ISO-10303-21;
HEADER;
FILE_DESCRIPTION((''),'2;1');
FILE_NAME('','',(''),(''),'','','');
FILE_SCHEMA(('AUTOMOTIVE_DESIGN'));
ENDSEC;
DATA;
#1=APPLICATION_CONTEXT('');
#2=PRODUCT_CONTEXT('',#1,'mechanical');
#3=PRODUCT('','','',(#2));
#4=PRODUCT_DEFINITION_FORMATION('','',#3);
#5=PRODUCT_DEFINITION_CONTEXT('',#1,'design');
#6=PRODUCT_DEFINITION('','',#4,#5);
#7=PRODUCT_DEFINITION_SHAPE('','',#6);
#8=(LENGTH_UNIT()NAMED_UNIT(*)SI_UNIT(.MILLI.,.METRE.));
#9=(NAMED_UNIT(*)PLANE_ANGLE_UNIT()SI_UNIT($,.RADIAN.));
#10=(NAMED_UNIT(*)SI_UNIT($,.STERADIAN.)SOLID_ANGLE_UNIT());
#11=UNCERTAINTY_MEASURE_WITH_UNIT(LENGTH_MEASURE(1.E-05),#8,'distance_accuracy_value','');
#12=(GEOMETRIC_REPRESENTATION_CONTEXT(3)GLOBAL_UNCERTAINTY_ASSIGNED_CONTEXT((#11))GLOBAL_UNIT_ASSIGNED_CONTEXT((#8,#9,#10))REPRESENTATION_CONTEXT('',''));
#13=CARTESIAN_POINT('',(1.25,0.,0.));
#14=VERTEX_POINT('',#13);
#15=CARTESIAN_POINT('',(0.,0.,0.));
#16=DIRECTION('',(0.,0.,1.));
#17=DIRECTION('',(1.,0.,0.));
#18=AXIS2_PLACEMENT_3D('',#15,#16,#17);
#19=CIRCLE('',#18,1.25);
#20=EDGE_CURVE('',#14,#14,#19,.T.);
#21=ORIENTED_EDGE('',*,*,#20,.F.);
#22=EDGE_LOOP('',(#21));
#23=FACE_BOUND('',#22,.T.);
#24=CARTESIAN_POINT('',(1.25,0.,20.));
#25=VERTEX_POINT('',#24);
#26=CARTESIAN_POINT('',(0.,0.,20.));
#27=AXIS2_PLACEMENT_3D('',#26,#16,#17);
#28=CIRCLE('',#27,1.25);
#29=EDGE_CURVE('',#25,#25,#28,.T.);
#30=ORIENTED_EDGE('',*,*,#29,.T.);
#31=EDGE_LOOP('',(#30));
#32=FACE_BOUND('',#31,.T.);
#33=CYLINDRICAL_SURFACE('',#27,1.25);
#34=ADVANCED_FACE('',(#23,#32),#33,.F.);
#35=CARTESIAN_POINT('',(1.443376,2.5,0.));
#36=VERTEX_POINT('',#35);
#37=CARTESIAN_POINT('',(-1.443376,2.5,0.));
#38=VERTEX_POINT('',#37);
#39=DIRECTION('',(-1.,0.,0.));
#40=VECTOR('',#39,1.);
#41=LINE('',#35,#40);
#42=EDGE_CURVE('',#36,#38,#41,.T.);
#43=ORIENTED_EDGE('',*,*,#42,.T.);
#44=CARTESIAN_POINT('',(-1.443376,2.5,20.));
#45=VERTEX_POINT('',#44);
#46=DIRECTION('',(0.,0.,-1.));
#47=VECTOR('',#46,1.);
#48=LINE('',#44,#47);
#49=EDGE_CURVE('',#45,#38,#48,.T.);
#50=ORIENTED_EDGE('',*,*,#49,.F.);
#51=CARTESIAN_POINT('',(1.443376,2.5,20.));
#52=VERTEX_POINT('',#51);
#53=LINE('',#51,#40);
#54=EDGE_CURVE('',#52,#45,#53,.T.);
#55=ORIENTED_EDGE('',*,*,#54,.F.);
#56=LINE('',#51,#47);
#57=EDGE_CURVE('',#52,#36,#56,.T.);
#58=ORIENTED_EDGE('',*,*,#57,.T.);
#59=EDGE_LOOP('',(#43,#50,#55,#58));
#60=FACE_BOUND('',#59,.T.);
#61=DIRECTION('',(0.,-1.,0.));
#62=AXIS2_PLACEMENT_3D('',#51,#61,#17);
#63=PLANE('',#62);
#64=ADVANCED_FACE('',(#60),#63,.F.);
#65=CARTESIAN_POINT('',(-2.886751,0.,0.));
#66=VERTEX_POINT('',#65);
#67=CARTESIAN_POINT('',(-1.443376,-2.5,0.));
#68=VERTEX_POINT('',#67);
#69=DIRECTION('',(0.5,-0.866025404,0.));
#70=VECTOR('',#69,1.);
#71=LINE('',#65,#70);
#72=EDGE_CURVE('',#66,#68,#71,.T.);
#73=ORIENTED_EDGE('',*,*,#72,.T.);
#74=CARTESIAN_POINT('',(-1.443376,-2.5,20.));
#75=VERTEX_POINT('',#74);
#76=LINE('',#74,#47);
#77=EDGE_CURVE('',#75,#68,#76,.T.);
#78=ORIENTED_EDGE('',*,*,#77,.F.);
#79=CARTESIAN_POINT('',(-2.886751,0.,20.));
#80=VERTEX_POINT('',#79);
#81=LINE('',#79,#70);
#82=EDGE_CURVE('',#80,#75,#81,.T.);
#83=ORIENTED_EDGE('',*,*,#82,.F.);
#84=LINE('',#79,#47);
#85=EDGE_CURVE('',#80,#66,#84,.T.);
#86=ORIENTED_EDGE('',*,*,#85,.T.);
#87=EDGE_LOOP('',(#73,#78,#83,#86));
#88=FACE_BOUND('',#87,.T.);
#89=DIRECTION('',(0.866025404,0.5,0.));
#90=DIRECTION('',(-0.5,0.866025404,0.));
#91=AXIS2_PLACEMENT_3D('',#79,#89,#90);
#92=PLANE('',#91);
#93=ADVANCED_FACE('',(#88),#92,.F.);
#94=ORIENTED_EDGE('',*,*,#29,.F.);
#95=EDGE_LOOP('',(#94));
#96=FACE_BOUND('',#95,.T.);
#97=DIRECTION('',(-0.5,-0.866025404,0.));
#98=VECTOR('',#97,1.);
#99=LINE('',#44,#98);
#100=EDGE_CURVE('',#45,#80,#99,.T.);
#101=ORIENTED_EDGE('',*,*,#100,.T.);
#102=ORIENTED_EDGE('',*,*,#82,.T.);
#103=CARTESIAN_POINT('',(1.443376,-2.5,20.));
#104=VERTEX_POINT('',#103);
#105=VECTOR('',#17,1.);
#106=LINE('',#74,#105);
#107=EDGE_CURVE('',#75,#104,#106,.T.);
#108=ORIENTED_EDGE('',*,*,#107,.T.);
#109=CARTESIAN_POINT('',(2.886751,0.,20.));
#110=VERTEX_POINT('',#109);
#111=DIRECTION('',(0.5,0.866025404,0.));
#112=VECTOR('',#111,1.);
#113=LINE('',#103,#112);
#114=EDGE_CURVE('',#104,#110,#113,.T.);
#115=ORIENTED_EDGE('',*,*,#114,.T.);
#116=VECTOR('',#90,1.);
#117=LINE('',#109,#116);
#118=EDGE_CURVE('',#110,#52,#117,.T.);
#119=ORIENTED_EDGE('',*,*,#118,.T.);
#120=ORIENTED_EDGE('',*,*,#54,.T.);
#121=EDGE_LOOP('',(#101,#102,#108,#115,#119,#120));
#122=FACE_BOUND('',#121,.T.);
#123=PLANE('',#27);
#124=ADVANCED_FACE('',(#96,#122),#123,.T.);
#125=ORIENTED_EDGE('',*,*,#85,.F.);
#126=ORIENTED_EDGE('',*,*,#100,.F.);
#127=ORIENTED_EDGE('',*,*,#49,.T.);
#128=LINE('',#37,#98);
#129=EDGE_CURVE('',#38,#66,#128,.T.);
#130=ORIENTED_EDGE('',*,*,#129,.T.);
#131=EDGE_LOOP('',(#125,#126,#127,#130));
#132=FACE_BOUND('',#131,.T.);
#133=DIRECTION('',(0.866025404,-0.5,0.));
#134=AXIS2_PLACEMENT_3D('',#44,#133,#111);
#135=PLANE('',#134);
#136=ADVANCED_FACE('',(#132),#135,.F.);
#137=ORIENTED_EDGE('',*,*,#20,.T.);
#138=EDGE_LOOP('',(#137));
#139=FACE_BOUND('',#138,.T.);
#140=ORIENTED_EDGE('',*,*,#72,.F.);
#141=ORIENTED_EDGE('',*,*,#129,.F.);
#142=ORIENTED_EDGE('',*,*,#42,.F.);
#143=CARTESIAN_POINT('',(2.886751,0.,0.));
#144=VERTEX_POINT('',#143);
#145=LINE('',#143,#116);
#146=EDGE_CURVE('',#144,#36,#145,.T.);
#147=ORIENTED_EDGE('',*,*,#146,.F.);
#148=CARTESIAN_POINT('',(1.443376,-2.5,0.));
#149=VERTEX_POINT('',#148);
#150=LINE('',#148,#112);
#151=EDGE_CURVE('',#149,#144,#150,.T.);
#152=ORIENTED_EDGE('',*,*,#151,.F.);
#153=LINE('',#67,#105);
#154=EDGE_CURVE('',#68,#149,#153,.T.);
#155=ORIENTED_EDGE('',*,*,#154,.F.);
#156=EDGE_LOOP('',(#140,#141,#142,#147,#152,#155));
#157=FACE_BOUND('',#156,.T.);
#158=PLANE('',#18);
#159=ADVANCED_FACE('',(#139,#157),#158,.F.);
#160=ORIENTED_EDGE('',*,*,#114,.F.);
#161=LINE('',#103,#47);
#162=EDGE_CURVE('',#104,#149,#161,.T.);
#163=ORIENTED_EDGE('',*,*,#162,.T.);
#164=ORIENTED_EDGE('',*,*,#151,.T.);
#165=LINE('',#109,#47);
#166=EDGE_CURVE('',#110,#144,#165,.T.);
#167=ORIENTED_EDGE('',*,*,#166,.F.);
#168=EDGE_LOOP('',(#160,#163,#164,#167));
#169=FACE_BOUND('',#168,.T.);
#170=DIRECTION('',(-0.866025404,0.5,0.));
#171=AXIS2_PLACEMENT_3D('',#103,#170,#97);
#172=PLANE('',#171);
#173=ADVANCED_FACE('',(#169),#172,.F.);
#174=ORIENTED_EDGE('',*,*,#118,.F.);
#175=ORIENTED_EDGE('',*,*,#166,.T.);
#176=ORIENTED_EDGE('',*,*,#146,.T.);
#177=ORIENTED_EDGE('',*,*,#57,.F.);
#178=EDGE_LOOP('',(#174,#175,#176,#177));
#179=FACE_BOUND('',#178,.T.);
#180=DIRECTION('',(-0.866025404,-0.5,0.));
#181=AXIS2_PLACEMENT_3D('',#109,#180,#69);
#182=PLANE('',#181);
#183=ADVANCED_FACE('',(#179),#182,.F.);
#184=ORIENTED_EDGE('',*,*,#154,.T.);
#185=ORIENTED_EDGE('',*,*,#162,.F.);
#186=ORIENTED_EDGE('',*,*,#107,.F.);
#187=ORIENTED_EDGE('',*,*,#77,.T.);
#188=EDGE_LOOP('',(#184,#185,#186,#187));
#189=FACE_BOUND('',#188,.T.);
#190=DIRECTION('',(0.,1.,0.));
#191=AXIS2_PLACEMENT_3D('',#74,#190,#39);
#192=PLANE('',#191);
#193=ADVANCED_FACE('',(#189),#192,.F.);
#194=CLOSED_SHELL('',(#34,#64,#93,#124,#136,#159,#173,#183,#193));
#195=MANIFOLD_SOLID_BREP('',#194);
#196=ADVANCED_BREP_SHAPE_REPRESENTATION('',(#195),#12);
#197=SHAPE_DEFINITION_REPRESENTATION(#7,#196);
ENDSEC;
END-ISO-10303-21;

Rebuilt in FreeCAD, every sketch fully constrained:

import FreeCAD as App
import Part
import Sketcher
Q = App.Units.Quantity


def add_polygon(sketch, points):
    """Adds a closed chain of lines whose ends are joined by coincident constraints."""
    first, n = sketch.GeometryCount, len(points)
    for a, b in zip(points, points[1:] + points[:1]):
        sketch.addGeometry(Part.LineSegment(App.Vector(*a, 0), App.Vector(*b, 0)), False)
    for i in range(n):
        sketch.addConstraint(Sketcher.Constraint("Coincident", first + i, 2, first + (i + 1) % n, 1))

doc = App.newDocument("Part")
body = doc.addObject("PartDesign::Body", "Body")

# Sketch on XY plane
sketch1 = doc.addObject("Sketcher::SketchObject", "Sketch")
body.addObject(sketch1)
sketch1.AttachmentSupport = (doc.XY_Plane, [""])
sketch1.MapMode = "FlatFace"
add_polygon(sketch1, [(-1.4, 2.5), (-2.9, 0), (-1.4, -2.5), (1.4, -2.5), (2.9, 0), (1.4, 2.5)])  # lines 0-5
sketch1.addConstraint(Sketcher.Constraint("Horizontal", 2))
sketch1.addConstraint(Sketcher.Constraint("Horizontal", 5))
sketch1.addConstraint(Sketcher.Constraint("Symmetric", 0, 2, 3, 2, -1, 1))
sketch1.addConstraint(Sketcher.Constraint("Symmetric", 1, 2, 4, 2, -1, 1))
sketch1.addConstraint(Sketcher.Constraint("PointOnObject", 0, 2, -1))
sketch1.addConstraint(Sketcher.Constraint("Parallel", 0, 3))
sketch1.addConstraint(Sketcher.Constraint("Vertical", 2, 2, 4, 2))
sketch1.addConstraint(Sketcher.Constraint("Angle", 0, Q("-120 deg")))
sketch1.addConstraint(Sketcher.Constraint("DistanceY", 2, 2, 4, 2, Q("5 mm")))
sketch1.addConstraint(Sketcher.Constraint("DistanceX", 2, 1, 2, 2, Q("2.886751 mm")))
pad1 = doc.addObject("PartDesign::Pad", "Pad")
body.addObject(pad1)
pad1.Profile = sketch1
pad1.Length = 20

# Sketch on XY plane
sketch2 = doc.addObject("Sketcher::SketchObject", "Sketch001")
body.addObject(sketch2)
sketch2.AttachmentSupport = (doc.XY_Plane, [""])
sketch2.MapMode = "FlatFace"
sketch2.AttachmentOffset = App.Placement(App.Vector(0, 0, 20), App.Rotation())
sketch2.addGeometry(Part.Circle(App.Vector(0, 0, 0), App.Vector(0, 0, 1), 1.2), False)
sketch2.addConstraint(Sketcher.Constraint("Coincident", 0, 3, -1, 1))
sketch2.addConstraint(Sketcher.Constraint("Diameter", 0, Q("2.5 mm")))
doc.recompute()
hole = doc.addObject("PartDesign::Hole", "Hole")
body.addObject(hole)
hole.Profile = sketch2
hole.ThreadType = "None"
hole.Diameter = 2.5
hole.DepthType = "ThroughAll"

doc.recompute()
